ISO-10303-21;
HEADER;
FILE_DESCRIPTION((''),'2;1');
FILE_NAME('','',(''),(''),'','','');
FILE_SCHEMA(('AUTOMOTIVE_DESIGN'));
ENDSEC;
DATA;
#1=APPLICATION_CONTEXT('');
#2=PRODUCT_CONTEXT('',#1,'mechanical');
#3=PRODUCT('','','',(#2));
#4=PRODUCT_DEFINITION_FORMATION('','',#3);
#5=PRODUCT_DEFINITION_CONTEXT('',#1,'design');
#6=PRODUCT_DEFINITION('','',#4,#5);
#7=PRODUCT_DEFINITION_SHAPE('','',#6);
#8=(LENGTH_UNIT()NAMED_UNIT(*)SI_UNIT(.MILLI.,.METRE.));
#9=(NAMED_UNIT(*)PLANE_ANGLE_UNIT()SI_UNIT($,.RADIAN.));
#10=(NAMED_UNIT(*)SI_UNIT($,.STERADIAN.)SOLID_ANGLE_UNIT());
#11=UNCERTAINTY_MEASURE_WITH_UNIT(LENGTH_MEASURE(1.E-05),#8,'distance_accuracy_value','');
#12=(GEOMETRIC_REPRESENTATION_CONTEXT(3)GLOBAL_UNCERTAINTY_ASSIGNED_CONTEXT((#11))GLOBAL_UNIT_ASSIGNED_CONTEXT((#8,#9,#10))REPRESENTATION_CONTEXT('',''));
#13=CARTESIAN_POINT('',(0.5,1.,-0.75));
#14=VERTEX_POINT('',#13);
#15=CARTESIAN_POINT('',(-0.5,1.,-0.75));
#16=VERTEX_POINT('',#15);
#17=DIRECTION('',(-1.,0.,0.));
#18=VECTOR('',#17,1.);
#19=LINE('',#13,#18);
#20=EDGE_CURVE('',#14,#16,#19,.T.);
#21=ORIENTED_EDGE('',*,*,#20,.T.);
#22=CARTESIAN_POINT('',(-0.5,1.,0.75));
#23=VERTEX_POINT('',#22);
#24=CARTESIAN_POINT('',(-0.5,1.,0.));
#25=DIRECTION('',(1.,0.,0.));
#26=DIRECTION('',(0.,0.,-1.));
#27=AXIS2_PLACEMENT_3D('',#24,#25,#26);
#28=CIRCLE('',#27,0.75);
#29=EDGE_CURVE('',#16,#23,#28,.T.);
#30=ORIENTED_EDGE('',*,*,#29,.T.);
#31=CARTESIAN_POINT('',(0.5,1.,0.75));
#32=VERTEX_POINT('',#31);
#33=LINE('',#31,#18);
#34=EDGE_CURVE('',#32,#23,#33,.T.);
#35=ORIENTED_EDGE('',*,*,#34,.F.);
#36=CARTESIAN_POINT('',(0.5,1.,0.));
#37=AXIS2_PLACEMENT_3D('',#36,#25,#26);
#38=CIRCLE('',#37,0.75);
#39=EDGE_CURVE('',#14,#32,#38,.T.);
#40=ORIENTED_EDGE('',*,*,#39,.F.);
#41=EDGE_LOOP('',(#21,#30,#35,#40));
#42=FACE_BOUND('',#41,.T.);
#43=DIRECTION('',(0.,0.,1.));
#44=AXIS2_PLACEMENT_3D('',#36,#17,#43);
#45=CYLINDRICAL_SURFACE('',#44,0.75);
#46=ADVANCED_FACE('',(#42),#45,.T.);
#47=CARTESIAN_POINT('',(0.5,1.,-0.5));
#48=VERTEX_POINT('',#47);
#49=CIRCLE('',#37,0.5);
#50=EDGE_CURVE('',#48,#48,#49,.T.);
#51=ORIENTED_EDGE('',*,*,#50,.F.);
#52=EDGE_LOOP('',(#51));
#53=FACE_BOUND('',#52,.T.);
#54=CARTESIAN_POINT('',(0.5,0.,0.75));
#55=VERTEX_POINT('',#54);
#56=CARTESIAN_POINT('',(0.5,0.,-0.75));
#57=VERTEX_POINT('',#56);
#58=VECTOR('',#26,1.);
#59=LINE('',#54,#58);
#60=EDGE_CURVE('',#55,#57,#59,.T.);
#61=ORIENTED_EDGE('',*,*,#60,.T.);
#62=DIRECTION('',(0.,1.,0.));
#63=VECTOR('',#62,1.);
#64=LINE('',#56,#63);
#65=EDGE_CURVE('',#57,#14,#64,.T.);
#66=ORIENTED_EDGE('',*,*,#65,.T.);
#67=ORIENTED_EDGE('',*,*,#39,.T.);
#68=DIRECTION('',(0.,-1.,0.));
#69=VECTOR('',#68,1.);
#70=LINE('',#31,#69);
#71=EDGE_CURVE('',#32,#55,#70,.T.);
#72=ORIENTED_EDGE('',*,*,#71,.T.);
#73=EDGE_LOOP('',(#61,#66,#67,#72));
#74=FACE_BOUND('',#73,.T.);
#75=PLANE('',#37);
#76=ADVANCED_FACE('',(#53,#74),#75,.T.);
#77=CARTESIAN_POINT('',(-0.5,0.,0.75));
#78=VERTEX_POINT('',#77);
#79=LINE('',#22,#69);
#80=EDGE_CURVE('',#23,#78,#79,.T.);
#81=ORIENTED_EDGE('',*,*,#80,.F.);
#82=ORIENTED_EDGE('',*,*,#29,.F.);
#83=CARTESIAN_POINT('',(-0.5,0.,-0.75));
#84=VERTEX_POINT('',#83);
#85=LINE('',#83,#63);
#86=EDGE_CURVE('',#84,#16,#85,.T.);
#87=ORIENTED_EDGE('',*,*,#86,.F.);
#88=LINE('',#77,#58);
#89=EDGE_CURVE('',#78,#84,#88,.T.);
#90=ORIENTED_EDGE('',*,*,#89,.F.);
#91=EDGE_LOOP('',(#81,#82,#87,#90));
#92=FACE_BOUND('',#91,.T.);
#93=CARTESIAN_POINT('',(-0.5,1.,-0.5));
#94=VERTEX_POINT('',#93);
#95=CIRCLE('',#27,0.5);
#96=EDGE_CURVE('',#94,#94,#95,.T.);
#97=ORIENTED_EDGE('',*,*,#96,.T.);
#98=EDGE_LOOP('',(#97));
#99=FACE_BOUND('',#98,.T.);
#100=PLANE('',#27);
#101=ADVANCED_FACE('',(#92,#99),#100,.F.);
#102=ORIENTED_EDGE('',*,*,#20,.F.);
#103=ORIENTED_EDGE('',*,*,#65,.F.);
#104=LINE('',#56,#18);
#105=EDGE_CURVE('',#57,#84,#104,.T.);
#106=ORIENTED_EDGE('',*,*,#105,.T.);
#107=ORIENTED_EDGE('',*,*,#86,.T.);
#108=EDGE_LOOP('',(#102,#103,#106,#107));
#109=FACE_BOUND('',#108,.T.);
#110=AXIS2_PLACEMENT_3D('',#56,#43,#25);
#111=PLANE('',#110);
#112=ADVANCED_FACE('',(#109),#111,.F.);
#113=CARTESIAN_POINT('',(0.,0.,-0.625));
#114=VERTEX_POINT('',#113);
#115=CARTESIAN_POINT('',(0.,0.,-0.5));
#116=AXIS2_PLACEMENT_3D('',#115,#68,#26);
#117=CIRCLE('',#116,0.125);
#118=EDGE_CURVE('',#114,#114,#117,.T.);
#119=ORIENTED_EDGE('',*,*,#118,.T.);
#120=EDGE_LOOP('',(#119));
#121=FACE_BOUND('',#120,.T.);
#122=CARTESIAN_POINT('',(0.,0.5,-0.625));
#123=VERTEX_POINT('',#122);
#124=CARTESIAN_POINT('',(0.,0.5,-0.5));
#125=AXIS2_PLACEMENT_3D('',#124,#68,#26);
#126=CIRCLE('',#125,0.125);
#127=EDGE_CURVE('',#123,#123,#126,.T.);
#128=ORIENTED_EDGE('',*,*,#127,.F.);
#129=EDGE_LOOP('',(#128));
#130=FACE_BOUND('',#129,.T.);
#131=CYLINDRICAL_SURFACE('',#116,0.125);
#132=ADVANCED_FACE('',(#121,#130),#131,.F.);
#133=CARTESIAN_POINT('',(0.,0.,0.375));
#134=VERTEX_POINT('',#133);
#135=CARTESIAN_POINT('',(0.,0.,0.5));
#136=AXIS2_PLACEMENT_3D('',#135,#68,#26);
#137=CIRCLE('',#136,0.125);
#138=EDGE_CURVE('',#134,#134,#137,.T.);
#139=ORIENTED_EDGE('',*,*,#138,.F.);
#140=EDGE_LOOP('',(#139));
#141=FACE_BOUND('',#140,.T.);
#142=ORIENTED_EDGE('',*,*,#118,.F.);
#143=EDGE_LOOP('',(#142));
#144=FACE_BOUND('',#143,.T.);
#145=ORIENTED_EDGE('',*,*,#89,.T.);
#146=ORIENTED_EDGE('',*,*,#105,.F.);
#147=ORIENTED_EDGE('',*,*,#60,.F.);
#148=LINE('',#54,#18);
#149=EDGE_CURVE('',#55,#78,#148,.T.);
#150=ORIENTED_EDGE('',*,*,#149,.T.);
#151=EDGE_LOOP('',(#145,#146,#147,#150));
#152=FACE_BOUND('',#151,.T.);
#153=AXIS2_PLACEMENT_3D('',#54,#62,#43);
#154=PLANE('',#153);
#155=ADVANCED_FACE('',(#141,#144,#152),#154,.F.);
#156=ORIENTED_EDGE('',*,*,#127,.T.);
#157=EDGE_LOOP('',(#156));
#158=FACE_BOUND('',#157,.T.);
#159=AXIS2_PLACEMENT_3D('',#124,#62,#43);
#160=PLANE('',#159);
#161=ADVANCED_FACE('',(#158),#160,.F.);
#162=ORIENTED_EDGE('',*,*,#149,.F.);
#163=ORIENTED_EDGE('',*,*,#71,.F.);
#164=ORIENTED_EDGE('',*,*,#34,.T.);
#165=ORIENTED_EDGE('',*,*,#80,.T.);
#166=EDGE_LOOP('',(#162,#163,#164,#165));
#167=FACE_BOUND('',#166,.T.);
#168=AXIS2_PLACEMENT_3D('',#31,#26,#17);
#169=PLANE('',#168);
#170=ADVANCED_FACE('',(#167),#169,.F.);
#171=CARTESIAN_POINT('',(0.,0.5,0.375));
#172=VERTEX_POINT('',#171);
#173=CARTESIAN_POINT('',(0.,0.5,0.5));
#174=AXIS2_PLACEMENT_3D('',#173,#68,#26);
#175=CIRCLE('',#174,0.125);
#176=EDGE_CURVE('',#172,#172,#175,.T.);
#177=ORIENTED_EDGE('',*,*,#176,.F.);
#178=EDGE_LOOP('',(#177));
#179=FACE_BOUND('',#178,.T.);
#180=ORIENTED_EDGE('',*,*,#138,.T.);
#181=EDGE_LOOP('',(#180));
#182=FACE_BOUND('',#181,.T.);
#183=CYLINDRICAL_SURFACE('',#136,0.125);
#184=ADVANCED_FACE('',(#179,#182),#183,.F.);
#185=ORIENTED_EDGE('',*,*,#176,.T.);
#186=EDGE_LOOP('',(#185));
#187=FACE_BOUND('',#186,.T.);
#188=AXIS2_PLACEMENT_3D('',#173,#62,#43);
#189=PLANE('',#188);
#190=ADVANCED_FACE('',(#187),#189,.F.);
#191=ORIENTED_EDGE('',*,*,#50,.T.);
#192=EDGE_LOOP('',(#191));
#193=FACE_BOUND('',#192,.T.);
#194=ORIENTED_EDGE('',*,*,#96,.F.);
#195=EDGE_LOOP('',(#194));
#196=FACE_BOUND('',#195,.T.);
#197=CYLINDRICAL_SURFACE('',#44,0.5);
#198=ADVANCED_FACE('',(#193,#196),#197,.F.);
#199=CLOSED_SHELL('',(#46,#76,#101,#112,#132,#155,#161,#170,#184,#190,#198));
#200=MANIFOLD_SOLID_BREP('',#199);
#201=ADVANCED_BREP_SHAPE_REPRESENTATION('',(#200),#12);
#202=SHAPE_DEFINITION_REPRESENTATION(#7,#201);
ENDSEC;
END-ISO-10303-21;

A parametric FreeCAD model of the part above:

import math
import FreeCAD as App
import Part
import Sketcher

V = App.Vector
Q = App.Units.Quantity

doc = App.newDocument("Part")
params = doc.addObject("Spreadsheet::Sheet", "Params")
for row, (alias, value) in enumerate([
    ("sketch1_diameter", "1 mm"),
    ("sketch1_width", "1 mm"),
    ("sketch1_radius", "0.75 mm"),
    ("pad1_length", "1 mm"),
    ("sketch2_diameter", "0.25 mm"),
    ("hole_diameter", "0.25 mm"),
    ("hole_depth", "0.5 mm"),
], start=1):
    params.set(f"A{row}", alias)
    params.set(f"B{row}", "=" + value)
    params.setAlias(f"B{row}", alias)

body = doc.addObject("PartDesign::Body", "Body")

# Sketch on YZ plane
sketch1 = doc.addObject("Sketcher::SketchObject", "Sketch")
body.addObject(sketch1)
sketch1.AttachmentSupport = (doc.YZ_Plane, [""])
sketch1.MapMode = "FlatFace"
sketch1.addGeometry(Part.LineSegment(V(1, 0.8, 0), V(0, 0.8, 0)), False)
sketch1.addGeometry(Part.LineSegment(V(0, 0.8, 0), V(0, -0.8, 0)), False)
sketch1.addGeometry(Part.LineSegment(V(0, -0.8, 0), V(1, -0.8, 0)), False)
sketch1.addGeometry(Part.ArcOfCircle(Part.Circle(V(1, 0, 0), V(0, 0, 1), 0.8), math.radians(-90), math.radians(90)), False)
sketch1.addGeometry(Part.Circle(V(1, 0, 0), V(0, 0, 1), 0.5), False)
sketch1.addConstraint(Sketcher.Constraint("Coincident", 0, 2, 1, 1))
sketch1.addConstraint(Sketcher.Constraint("Coincident", 1, 2, 2, 1))
sketch1.addConstraint(Sketcher.Constraint("Tangent", 2, 2, 3, 1))
sketch1.addConstraint(Sketcher.Constraint("Tangent", 3, 2, 0, 1))
sketch1.addConstraint(Sketcher.Constraint("Horizontal", 0))
sketch1.addConstraint(Sketcher.Constraint("Vertical", 1))
sketch1.addConstraint(Sketcher.Constraint("Horizontal", 2))
sketch1.addConstraint(Sketcher.Constraint("Coincident", 4, 3, 3, 3))
sketch1.addConstraint(Sketcher.Constraint("Symmetric", 0, 2, 1, 2, -1, 1))
sketch1.addConstraint(Sketcher.Constraint("Diameter", 4, Q("1 mm")))
sketch1.addConstraint(Sketcher.Constraint("DistanceX", 0, 2, 0, 1, Q("1 mm")))
sketch1.addConstraint(Sketcher.Constraint("Radius", 3, Q("0.75 mm")))
sketch1.setExpression("Constraints[9]", "Params.sketch1_diameter")
sketch1.setExpression("Constraints[10]", "Params.sketch1_width")
sketch1.setExpression("Constraints[11]", "Params.sketch1_radius")
pad1 = doc.addObject("PartDesign::Pad", "Pad")
body.addObject(pad1)
pad1.Profile = sketch1
pad1.setExpression("Length", "Params.pad1_length")
pad1.Midplane = True

# Sketch on XZ plane
sketch2 = doc.addObject("Sketcher::SketchObject", "Sketch001")
body.addObject(sketch2)
sketch2.AttachmentSupport = (doc.XZ_Plane, [""])
sketch2.MapMode = "FlatFace"
sketch2.addGeometry(Part.Circle(V(0, 0.5, 0), V(0, 0, 1), 0.12), False)
sketch2.addGeometry(Part.Circle(V(0, -0.5, 0), V(0, 0, 1), 0.12), False)
sketch2.addConstraint(Sketcher.Constraint("Equal", 0, 1))
sketch2.addConstraint(Sketcher.Constraint("Symmetric", 0, 3, 1, 3, -1, 1))
sketch2.addConstraint(Sketcher.Constraint("PointOnObject", 0, 3, -2))
sketch2.addConstraint(Sketcher.Constraint("Diameter", 0, Q("0.25 mm")))
sketch2.addConstraint(Sketcher.Constraint("DistanceY", 1, 3, 0, 3, Q("1 mm")))
sketch2.setExpression("Constraints[3]", "Params.sketch2_diameter")
doc.recompute()
hole = doc.addObject("PartDesign::Hole", "Hole")
body.addObject(hole)
hole.Profile = sketch2
hole.ThreadType = "None"
hole.setExpression("Diameter", "Params.hole_diameter")
hole.DepthType = "Dimension"
hole.setExpression("Depth", "Params.hole_depth")
hole.DrillPoint = "Flat"

doc.recompute()
